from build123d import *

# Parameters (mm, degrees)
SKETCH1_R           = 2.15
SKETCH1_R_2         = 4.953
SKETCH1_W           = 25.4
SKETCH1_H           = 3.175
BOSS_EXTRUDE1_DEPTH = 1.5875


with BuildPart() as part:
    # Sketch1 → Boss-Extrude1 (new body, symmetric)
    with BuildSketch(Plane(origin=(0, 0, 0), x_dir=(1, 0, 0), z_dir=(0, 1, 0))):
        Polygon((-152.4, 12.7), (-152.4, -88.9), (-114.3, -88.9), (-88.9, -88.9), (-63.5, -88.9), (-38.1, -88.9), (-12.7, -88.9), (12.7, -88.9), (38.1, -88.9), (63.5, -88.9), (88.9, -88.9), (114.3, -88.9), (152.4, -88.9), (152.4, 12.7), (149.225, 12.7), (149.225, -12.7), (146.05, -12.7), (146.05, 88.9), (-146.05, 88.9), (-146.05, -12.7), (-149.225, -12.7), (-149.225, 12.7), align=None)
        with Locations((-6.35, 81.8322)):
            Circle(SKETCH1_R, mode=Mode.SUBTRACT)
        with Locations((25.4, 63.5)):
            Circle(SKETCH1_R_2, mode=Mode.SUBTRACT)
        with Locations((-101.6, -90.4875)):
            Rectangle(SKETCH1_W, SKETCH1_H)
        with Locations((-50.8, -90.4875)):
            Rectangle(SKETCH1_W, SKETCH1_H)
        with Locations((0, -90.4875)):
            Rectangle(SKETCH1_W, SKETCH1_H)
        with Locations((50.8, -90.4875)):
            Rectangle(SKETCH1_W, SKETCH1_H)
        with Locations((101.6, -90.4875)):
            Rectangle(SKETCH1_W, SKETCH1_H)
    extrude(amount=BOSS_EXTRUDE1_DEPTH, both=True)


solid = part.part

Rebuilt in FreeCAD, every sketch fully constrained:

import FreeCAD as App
import Part
import Sketcher
from FreeCAD import Vector
Q = App.Units.Quantity

doc = App.newDocument("Part")
body = doc.addObject("PartDesign::Body", "Body")

# Sketch on XZ plane
sketch1 = body.newObject("Sketcher::SketchObject", "Sketch")
sketch1.AttachmentSupport = (doc.getObject("XZ_Plane"), [""])
sketch1.MapMode = "FlatFace"
sketch1.addGeometry([
    Part.LineSegment(Vector(-152.4, -12.7, 0), Vector(-152.4, 88.9, 0)),  # 0
    Part.LineSegment(Vector(-152.4, 88.9, 0), Vector(-114.3, 88.9, 0)),  # 1
    Part.LineSegment(Vector(-114.3, 88.9, 0), Vector(-114.3, 92.1, 0)),  # 2
    Part.LineSegment(Vector(-114.3, 92.1, 0), Vector(-88.9, 92.1, 0)),  # 3
    Part.LineSegment(Vector(-88.9, 92.1, 0), Vector(-88.9, 88.9, 0)),  # 4
    Part.LineSegment(Vector(-88.9, 88.9, 0), Vector(-63.5, 88.9, 0)),  # 5
    Part.LineSegment(Vector(-63.5, 88.9, 0), Vector(-63.5, 92.1, 0)),  # 6
    Part.LineSegment(Vector(-63.5, 92.1, 0), Vector(-38.1, 92.1, 0)),  # 7
    Part.LineSegment(Vector(-38.1, 92.1, 0), Vector(-38.1, 88.9, 0)),  # 8
    Part.LineSegment(Vector(-38.1, 88.9, 0), Vector(-12.7, 88.9, 0)),  # 9
    Part.LineSegment(Vector(-12.7, 88.9, 0), Vector(-12.7, 92.1, 0)),  # 10
    Part.LineSegment(Vector(-12.7, 92.1, 0), Vector(12.7, 92.1, 0)),  # 11
    Part.LineSegment(Vector(12.7, 92.1, 0), Vector(12.7, 88.9, 0)),  # 12
    Part.LineSegment(Vector(12.7, 88.9, 0), Vector(38.1, 88.9, 0)),  # 13
    Part.LineSegment(Vector(38.1, 88.9, 0), Vector(38.1, 92.1, 0)),  # 14
    Part.LineSegment(Vector(38.1, 92.1, 0), Vector(63.5, 92.1, 0)),  # 15
    Part.LineSegment(Vector(63.5, 92.1, 0), Vector(63.5, 88.9, 0)),  # 16
    Part.LineSegment(Vector(63.5, 88.9, 0), Vector(88.9, 88.9, 0)),  # 17
    Part.LineSegment(Vector(88.9, 88.9, 0), Vector(88.9, 92.1, 0)),  # 18
    Part.LineSegment(Vector(88.9, 92.1, 0), Vector(114.3, 92.1, 0)),  # 19
    Part.LineSegment(Vector(114.3, 92.1, 0), Vector(114.3, 88.9, 0)),  # 20
    Part.LineSegment(Vector(114.3, 88.9, 0), Vector(152.4, 88.9, 0)),  # 21
    Part.LineSegment(Vector(152.4, 88.9, 0), Vector(152.4, -12.7, 0)),  # 22
    Part.LineSegment(Vector(152.4, -12.7, 0), Vector(149.2, -12.7, 0)),  # 23
    Part.LineSegment(Vector(149.2, -12.7, 0), Vector(149.2, 12.7, 0)),  # 24
    Part.LineSegment(Vector(149.2, 12.7, 0), Vector(146.1, 12.7, 0)),  # 25
    Part.LineSegment(Vector(146.1, 12.7, 0), Vector(146.1, -88.9, 0)),  # 26
    Part.LineSegment(Vector(146.1, -88.9, 0), Vector(-146.1, -88.9, 0)),  # 27
    Part.LineSegment(Vector(-146.1, -88.9, 0), Vector(-146.1, 12.7, 0)),  # 28
    Part.LineSegment(Vector(-146.1, 12.7, 0), Vector(-149.2, 12.7, 0)),  # 29
    Part.LineSegment(Vector(-149.2, 12.7, 0), Vector(-149.2, -12.7, 0)),  # 30
    Part.LineSegment(Vector(-149.2, -12.7, 0), Vector(-152.4, -12.7, 0)),  # 31
    Part.Circle(Vector(25.4, -63.5, 0), Vector(0, 0, 1), 5),  # 32
    Part.Circle(Vector(-6.3, -81.8, 0), Vector(0, 0, 1), 2.1),  # 33
], False)
sketch1.addConstraint([
    Sketcher.Constraint("Coincident", 0, 2, 1, 1),
    Sketcher.Constraint("Coincident", 1, 2, 2, 1),
    Sketcher.Constraint("Coincident", 2, 2, 3, 1),
    Sketcher.Constraint("Coincident", 3, 2, 4, 1),
    Sketcher.Constraint("Coincident", 4, 2, 5, 1),
    Sketcher.Constraint("Coincident", 5, 2, 6, 1),
    Sketcher.Constraint("Coincident", 6, 2, 7, 1),
    Sketcher.Constraint("Coincident", 7, 2, 8, 1),
    Sketcher.Constraint("Coincident", 8, 2, 9, 1),
    Sketcher.Constraint("Coincident", 9, 2, 10, 1),
    Sketcher.Constraint("Coincident", 10, 2, 11, 1),
    Sketcher.Constraint("Coincident", 11, 2, 12, 1),
    Sketcher.Constraint("Coincident", 12, 2, 13, 1),
    Sketcher.Constraint("Coincident", 13, 2, 14, 1),
    Sketcher.Constraint("Coincident", 14, 2, 15, 1),
    Sketcher.Constraint("Coincident", 15, 2, 16, 1),
    Sketcher.Constraint("Coincident", 16, 2, 17, 1),
    Sketcher.Constraint("Coincident", 17, 2, 18, 1),
    Sketcher.Constraint("Coincident", 18, 2, 19, 1),
    Sketcher.Constraint("Coincident", 19, 2, 20, 1),
    Sketcher.Constraint("Coincident", 20, 2, 21, 1),
    Sketcher.Constraint("Coincident", 21, 2, 22, 1),
    Sketcher.Constraint("Coincident", 22, 2, 23, 1),
    Sketcher.Constraint("Coincident", 23, 2, 24, 1),
    Sketcher.Constraint("Coincident", 24, 2, 25, 1),
    Sketcher.Constraint("Coincident", 25, 2, 26, 1),
    Sketcher.Constraint("Coincident", 26, 2, 27, 1),
    Sketcher.Constraint("Coincident", 27, 2, 28, 1),
    Sketcher.Constraint("Coincident", 28, 2, 29, 1),
    Sketcher.Constraint("Coincident", 29, 2, 30, 1),
    Sketcher.Constraint("Coincident", 30, 2, 31, 1),
    Sketcher.Constraint("Coincident", 31, 2, 0, 1),
    Sketcher.Constraint("Vertical", 0),
    Sketcher.Constraint("Horizontal", 1),
    Sketcher.Constraint("Vertical", 2),
    Sketcher.Constraint("Horizontal", 3),
    Sketcher.Constraint("Vertical", 4),
    Sketcher.Constraint("Horizontal", 5),
    Sketcher.Constraint("Vertical", 6),
    Sketcher.Constraint("Horizontal", 7),
    Sketcher.Constraint("Vertical", 8),
    Sketcher.Constraint("Horizontal", 9),
    Sketcher.Constraint("Vertical", 10),
    Sketcher.Constraint("Horizontal", 11),
    Sketcher.Constraint("Vertical", 12),
    Sketcher.Constraint("Horizontal", 13),
    Sketcher.Constraint("Vertical", 14),
    Sketcher.Constraint("Horizontal", 15),
    Sketcher.Constraint("Vertical", 16),
    Sketcher.Constraint("Horizontal", 17),
    Sketcher.Constraint("Vertical", 18),
    Sketcher.Constraint("Horizontal", 19),
    Sketcher.Constraint("Vertical", 20),
    Sketcher.Constraint("Horizontal", 21),
    Sketcher.Constraint("Vertical", 22),
    Sketcher.Constraint("Horizontal", 23),
    Sketcher.Constraint("Vertical", 24),
    Sketcher.Constraint("Horizontal", 25),
    Sketcher.Constraint("Vertical", 26),
    Sketcher.Constraint("Horizontal", 27),
    Sketcher.Constraint("Vertical", 28),
    Sketcher.Constraint("Horizontal", 29),
    Sketcher.Constraint("Vertical", 30),
    Sketcher.Constraint("Horizontal", 31),
    Sketcher.Constraint("Symmetric", 23, 2, 29, 2, -1, 1),
    Sketcher.Constraint("Symmetric", 9, 2, 12, 2, -2),
    Sketcher.Constraint("Symmetric", 7, 2, 14, 2, -2),
    Sketcher.Constraint("Symmetric", 5, 2, 16, 2, -2),
    Sketcher.Constraint("Symmetric", 3, 2, 18, 2, -2),
    Sketcher.Constraint("Symmetric", 1, 2, 20, 2, -2),
    Sketcher.Constraint("Symmetric", 25, 2, 28, 2, -2),
    Sketcher.Constraint("Symmetric", 22, 2, 31, 2, -2),
    Sketcher.Constraint("Horizontal", 1, 2, 4, 2),
    Sketcher.Constraint("Horizontal", 3, 2, 6, 2),
    Sketcher.Constraint("Horizontal", 5, 2, 8, 2),
    Sketcher.Constraint("Horizontal", 7, 2, 10, 2),
    Sketcher.Constraint("Equal", 3, 5),
    Sketcher.Constraint("Equal", 5, 7),
    Sketcher.Constraint("Equal", 7, 9),
    Sketcher.Constraint("Equal", 9, 11),
    Sketcher.Constraint("Equal", 23, 25),
    Sketcher.Constraint("Equal", 31, 2),
    Sketcher.Constraint("Equal", 19, 24),
    Sketcher.Constraint("Equal", 22, 26),
    Sketcher.Constraint("Diameter", 32, Q("0.39 in")),
    Sketcher.Constraint("DistanceX", 3, 1, 3, 2, Q("1 in")),
    Sketcher.Constraint("DistanceY", 0, 1, 0, 2, Q("4 in")),
    Sketcher.Constraint("DistanceX", 1, 1, 1, 2, Q("1.5 in")),
    Sketcher.Constraint("DistanceX", 27, 2, 27, 1, Q("11.5 in")),
    Sketcher.Constraint("DistanceX", -1, 1, 32, 3, Q("1 in")),
    Sketcher.Constraint("DistanceY", 32, 3, 0, 2, Q("6 in")),
    Sketcher.Constraint("DistanceX", 27, 2, 33, 3, Q("5.5 in")),
    Sketcher.Constraint("Diameter", 33, 4.3),
    Sketcher.Constraint("DistanceY", 33, 3, -1, 1, 81.8322),
])
pad1 = body.newObject("PartDesign::Pad", "Pad")
pad1.Profile = sketch1
pad1.Length = Q("0.125 in")
pad1.Midplane = True

doc.recompute()
